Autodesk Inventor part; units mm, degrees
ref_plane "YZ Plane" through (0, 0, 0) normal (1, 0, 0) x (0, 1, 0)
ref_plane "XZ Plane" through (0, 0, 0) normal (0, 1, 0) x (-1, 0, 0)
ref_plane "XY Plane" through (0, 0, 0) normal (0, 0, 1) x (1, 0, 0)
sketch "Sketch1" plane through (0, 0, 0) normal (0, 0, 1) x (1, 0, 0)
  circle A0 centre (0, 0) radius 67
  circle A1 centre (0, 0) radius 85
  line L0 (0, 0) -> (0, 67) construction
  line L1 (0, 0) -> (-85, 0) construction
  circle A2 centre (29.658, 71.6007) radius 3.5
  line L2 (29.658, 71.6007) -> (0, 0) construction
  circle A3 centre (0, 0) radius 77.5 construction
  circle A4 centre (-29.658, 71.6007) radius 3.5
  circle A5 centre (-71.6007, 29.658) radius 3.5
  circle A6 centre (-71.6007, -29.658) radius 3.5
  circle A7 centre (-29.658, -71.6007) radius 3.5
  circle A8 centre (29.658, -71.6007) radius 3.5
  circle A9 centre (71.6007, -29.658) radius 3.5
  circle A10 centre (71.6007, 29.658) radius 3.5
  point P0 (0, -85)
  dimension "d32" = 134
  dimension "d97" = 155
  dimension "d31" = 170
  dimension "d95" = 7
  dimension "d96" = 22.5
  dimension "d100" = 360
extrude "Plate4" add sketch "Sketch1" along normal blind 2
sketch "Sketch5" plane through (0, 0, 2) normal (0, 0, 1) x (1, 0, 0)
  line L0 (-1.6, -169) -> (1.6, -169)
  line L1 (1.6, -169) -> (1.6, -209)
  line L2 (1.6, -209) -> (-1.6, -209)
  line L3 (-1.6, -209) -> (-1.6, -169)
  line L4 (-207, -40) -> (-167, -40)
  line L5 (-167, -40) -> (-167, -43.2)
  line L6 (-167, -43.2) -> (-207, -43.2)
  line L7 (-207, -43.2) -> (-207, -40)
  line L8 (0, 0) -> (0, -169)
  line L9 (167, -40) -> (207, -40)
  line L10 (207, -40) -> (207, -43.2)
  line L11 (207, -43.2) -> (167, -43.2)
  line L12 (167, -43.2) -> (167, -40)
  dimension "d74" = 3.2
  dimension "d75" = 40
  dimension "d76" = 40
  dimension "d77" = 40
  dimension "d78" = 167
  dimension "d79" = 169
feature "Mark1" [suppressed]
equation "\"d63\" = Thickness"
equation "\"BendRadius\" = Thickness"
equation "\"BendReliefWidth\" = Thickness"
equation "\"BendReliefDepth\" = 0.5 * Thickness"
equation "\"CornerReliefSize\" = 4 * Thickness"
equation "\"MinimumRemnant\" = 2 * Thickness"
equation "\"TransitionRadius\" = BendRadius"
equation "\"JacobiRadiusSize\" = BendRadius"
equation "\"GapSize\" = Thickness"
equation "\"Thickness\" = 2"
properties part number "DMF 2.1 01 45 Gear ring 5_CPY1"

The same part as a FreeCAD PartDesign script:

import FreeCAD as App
import Part
import Sketcher

V = App.Vector
Q = App.Units.Quantity

doc = App.newDocument("Part")
body = doc.addObject("PartDesign::Body", "Body")

# Sketch on XY plane
sketch1 = body.newObject("Sketcher::SketchObject", "Sketch")
sketch1.AttachmentSupport = (doc.getObject("XY_Plane"), [""])
sketch1.MapMode = "FlatFace"
sketch1.addGeometry([
    Part.Circle(V(0, 0, 0), V(0, 0, 1), 85),  # 0
    Part.Circle(V(-29.7, -71.6, 0), V(0, 0, 1), 3.5),  # 1
    Part.Circle(V(-71.6, -29.7, 0), V(0, 0, 1), 3.5),  # 2
    Part.Circle(V(29.7, -71.6, 0), V(0, 0, 1), 3.5),  # 3
    Part.Circle(V(71.6, -29.7, 0), V(0, 0, 1), 3.5),  # 4
    Part.Circle(V(-71.6, 29.7, 0), V(0, 0, 1), 3.5),  # 5
    Part.Circle(V(-29.7, 71.6, 0), V(0, 0, 1), 3.5),  # 6
    Part.Circle(V(0, 0, 0), V(0, 0, 1), 67),  # 7
    Part.Circle(V(71.6, 29.7, 0), V(0, 0, 1), 3.5),  # 8
    Part.Circle(V(29.7, 71.6, 0), V(0, 0, 1), 3.5),  # 9
], False)
sketch1.addConstraint([
    Sketcher.Constraint("Coincident", 0, 3, -1, 1),
    Sketcher.Constraint("Coincident", 7, 3, -1, 1),
    Sketcher.Constraint("Equal", 1, 2),
    Sketcher.Constraint("Equal", 2, 3),
    Sketcher.Constraint("Equal", 3, 4),
    Sketcher.Constraint("Equal", 4, 5),
    Sketcher.Constraint("Equal", 5, 6),
    Sketcher.Constraint("Equal", 6, 8),
    Sketcher.Constraint("Equal", 8, 9),
    Sketcher.Constraint("Symmetric", 4, 3, 5, 3, -1, 1),
    Sketcher.Constraint("Symmetric", 3, 3, 6, 3, -1, 1),
    Sketcher.Constraint("Symmetric", 2, 3, 8, 3, -1, 1),
    Sketcher.Constraint("Symmetric", 1, 3, 9, 3, -1, 1),
    Sketcher.Constraint("Symmetric", 1, 3, 3, 3, -2),
    Sketcher.Constraint("Symmetric", 2, 3, 4, 3, -2),
    Sketcher.Constraint("Diameter", 0, Q("170 mm")),
    Sketcher.Constraint("Diameter", 1, Q("7 mm")),
    Sketcher.Constraint("Diameter", 7, Q("134 mm")),
    Sketcher.Constraint("DistanceX", 1, 3, -1, 1, Q("29.658 mm")),
    Sketcher.Constraint("DistanceY", 2, 3, -1, 1, Q("29.658 mm")),
    Sketcher.Constraint("DistanceY", 1, 3, -1, 1, Q("71.6007 mm")),
    Sketcher.Constraint("DistanceX", 2, 3, -1, 1, Q("71.6007 mm")),
])
pad1 = body.newObject("PartDesign::Pad", "Pad")
pad1.Profile = sketch1
pad1.Length = 2

doc.recompute()
